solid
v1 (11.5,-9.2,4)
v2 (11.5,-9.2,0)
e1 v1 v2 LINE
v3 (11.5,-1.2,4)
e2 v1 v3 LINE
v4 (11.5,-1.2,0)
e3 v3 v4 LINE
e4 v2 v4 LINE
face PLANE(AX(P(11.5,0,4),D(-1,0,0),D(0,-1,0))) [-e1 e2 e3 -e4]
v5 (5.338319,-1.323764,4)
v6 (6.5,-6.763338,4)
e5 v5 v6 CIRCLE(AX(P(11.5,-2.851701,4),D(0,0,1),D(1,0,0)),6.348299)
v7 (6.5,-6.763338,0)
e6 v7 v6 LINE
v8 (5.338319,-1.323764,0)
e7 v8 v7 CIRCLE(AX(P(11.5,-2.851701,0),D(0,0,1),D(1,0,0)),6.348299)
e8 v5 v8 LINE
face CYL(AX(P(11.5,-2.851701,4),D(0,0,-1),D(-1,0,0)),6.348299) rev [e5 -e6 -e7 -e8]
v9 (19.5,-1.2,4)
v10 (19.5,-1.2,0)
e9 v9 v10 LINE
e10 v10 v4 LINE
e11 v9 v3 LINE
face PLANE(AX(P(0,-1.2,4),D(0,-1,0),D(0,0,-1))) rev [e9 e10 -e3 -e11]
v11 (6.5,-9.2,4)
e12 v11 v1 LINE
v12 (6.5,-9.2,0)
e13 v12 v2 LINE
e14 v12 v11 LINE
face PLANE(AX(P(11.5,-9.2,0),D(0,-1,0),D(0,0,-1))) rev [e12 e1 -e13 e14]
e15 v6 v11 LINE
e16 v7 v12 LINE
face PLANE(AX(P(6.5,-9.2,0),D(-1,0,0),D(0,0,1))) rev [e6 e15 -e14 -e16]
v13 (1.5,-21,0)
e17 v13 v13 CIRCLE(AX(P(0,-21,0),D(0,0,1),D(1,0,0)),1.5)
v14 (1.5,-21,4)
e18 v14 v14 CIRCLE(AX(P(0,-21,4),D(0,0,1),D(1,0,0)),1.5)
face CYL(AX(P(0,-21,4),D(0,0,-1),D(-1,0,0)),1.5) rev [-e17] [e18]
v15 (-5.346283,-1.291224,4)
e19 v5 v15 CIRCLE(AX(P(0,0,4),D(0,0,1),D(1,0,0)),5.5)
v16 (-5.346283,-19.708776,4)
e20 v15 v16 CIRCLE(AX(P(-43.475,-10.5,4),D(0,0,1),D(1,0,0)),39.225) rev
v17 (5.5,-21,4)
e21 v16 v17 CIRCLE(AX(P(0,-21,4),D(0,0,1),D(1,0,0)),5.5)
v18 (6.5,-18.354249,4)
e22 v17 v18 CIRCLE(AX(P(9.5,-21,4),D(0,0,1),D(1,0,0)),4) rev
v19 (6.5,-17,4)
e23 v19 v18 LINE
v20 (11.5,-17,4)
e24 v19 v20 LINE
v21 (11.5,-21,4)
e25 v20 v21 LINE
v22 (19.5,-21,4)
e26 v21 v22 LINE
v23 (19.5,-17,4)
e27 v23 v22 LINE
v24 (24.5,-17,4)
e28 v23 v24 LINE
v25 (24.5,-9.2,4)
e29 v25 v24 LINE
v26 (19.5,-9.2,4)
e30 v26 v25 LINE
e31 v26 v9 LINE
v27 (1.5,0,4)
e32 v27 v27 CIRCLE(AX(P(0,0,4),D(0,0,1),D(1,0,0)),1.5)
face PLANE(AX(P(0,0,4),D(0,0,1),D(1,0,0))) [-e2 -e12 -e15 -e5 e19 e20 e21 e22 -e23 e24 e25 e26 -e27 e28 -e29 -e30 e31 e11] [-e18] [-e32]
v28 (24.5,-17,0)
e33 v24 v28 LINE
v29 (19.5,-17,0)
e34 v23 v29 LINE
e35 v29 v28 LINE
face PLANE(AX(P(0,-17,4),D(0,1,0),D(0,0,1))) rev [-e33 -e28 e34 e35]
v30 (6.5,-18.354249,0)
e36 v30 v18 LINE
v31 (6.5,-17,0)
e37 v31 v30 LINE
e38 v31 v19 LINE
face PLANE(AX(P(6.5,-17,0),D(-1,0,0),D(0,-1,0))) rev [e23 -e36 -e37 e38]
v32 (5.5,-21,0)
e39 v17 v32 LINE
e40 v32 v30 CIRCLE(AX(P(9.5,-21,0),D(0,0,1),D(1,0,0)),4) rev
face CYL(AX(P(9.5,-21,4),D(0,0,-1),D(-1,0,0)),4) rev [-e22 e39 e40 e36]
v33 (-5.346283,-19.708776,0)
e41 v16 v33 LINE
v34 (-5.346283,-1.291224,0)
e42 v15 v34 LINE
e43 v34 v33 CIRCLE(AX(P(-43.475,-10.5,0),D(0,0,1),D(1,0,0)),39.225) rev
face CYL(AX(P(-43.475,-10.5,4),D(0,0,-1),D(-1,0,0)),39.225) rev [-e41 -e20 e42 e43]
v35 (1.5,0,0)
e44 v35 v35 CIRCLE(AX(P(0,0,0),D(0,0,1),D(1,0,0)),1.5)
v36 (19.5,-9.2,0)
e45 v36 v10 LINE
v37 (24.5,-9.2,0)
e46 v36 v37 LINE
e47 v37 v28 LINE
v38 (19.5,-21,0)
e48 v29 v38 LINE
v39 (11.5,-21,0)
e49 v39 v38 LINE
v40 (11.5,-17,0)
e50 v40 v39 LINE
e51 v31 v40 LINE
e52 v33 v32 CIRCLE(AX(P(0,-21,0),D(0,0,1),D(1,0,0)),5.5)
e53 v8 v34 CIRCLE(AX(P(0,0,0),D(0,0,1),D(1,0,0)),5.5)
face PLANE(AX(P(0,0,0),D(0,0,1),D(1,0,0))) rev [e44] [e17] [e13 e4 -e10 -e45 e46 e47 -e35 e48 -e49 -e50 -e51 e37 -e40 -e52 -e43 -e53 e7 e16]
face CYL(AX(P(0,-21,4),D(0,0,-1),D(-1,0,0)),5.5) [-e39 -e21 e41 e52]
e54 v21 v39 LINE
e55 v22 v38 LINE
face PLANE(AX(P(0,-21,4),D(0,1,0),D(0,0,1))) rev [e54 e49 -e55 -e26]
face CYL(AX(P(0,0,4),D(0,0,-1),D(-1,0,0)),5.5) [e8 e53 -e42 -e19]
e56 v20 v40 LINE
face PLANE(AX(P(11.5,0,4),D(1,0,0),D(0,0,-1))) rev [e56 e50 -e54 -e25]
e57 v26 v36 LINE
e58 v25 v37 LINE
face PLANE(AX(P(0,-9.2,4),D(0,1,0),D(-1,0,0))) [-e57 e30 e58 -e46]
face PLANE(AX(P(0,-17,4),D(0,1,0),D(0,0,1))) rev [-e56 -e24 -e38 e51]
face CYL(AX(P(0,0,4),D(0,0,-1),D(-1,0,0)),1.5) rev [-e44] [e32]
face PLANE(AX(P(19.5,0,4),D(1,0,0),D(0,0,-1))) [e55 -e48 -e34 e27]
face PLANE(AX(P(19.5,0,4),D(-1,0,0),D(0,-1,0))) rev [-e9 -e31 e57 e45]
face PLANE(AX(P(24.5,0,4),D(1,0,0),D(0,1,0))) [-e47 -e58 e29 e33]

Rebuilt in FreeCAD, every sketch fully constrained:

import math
import FreeCAD as App
import Part
import Sketcher

V = App.Vector

doc = App.newDocument("Part")
body = doc.addObject("PartDesign::Body", "Body")

# Sketch on XY plane
sketch1 = doc.addObject("Sketcher::SketchObject", "Sketch")
body.addObject(sketch1)
sketch1.AttachmentSupport = (doc.XY_Plane, [""])
sketch1.MapMode = "FlatFace"
sketch1.addGeometry([
    Part.LineSegment(V(11.5, -1.2, 0), V(11.5, -9.2, 0)),  # 0
    Part.ArcOfCircle(Part.Circle(V(11.5, -2.851701, 0), V(0, 0, 1), 6.348299), math.radians(166.073063), math.radians(270)),  # 1
    Part.ArcOfCircle(Part.Circle(V(0, 0, 0), V(0, 0, 1), 5.5), math.radians(-13.926937), math.radians(193.577949)),  # 2
    Part.ArcOfCircle(Part.Circle(V(-43.475, -10.5, 0), V(0, 0, 1), 39.225), math.radians(-13.577949), math.radians(13.577949)),  # 3
    Part.ArcOfCircle(Part.Circle(V(0, -21, 0), V(0, 0, 1), 5.5), math.radians(166.422051), math.radians(360)),  # 4
    Part.ArcOfCircle(Part.Circle(V(9.5, -21, 0), V(0, 0, 1), 4), math.radians(90), math.radians(180)),  # 5
    Part.LineSegment(V(9.5, -17, 0), V(11.5, -17, 0)),  # 6
    Part.LineSegment(V(11.5, -17, 0), V(11.5, -21, 0)),  # 7
    Part.LineSegment(V(11.5, -21, 0), V(19.5, -21, 0)),  # 8
    Part.LineSegment(V(19.5, -21, 0), V(19.5, -17, 0)),  # 9
    Part.LineSegment(V(19.5, -17, 0), V(24.5, -17, 0)),  # 10
    Part.LineSegment(V(24.5, -17, 0), V(24.5, -9.2, 0)),  # 11
    Part.LineSegment(V(24.5, -9.2, 0), V(19.5, -9.2, 0)),  # 12
    Part.LineSegment(V(19.5, -9.2, 0), V(19.5, -1.2, 0)),  # 13
    Part.LineSegment(V(19.5, -1.2, 0), V(11.5, -1.2, 0)),  # 14
    Part.Circle(V(0, -21, 0), V(0, 0, 1), 1.5),  # 15
    Part.Circle(V(0, 0, 0), V(0, 0, 1), 1.5),  # 16
], False)
sketch1.addConstraint([
    Sketcher.Constraint("Coincident", 0, 2, 1, 2),
    Sketcher.Constraint("Tangent", 1, 1, 2, 1),
    Sketcher.Constraint("Tangent", 2, 2, 3, 2),
    Sketcher.Constraint("Tangent", 3, 1, 4, 1),
    Sketcher.Constraint("Tangent", 4, 2, 5, 2),
    Sketcher.Constraint("Tangent", 5, 1, 6, 1),
    Sketcher.Constraint("Coincident", 6, 2, 7, 1),
    Sketcher.Constraint("Coincident", 7, 2, 8, 1),
    Sketcher.Constraint("Coincident", 8, 2, 9, 1),
    Sketcher.Constraint("Coincident", 9, 2, 10, 1),
    Sketcher.Constraint("Coincident", 10, 2, 11, 1),
    Sketcher.Constraint("Coincident", 11, 2, 12, 1),
    Sketcher.Constraint("Coincident", 12, 2, 13, 1),
    Sketcher.Constraint("Coincident", 13, 2, 14, 1),
    Sketcher.Constraint("Coincident", 14, 2, 0, 1),
    Sketcher.Constraint("Vertical", 0),
    Sketcher.Constraint("Horizontal", 6),
    Sketcher.Constraint("Vertical", 7),
    Sketcher.Constraint("Horizontal", 8),
    Sketcher.Constraint("Vertical", 9),
    Sketcher.Constraint("Horizontal", 10),
    Sketcher.Constraint("Vertical", 11),
    Sketcher.Constraint("Horizontal", 12),
    Sketcher.Constraint("Vertical", 13),
    Sketcher.Constraint("Horizontal", 14),
    Sketcher.Constraint("Coincident", 2, 3, -1, 1),
    Sketcher.Constraint("Coincident", 16, 3, -1, 1),
    Sketcher.Constraint("Coincident", 15, 3, 4, 3),
    Sketcher.Constraint("Equal", 2, 4),
    Sketcher.Constraint("Equal", 15, 16),
    Sketcher.Constraint("PointOnObject", 4, 3, -2),
    Sketcher.Constraint("Horizontal", 4, 3, 5, 3),
    Sketcher.Constraint("Horizontal", 4, 2, 7, 2),
    Sketcher.Constraint("Horizontal", 6, 2, 9, 2),
    Sketcher.Constraint("Horizontal", 0, 2, 11, 2),
    Sketcher.Constraint("Vertical", 1, 3, 0, 2),
    Sketcher.Constraint("Vertical", 0, 2, 6, 2),
    Sketcher.Constraint("Vertical", 9, 2, 12, 2),
    Sketcher.Constraint("Equal", 14, 0),
    Sketcher.Constraint("Diameter", 15, 3.0),
    Sketcher.Constraint("Radius", 5, 4.0),
    Sketcher.Constraint("Radius", 2, 5.5),
    Sketcher.Constraint("DistanceX", 6, 1, 6, 2, 2.0),
    Sketcher.Constraint("DistanceX", 8, 1, 8, 2, 8.0),
    Sketcher.Constraint("DistanceX", 10, 1, 10, 2, 5.0),
    Sketcher.Constraint("DistanceY", 11, 1, 11, 2, 7.8),
    Sketcher.Constraint("DistanceY", 4, 3, -1, 1, 21.0),
    Sketcher.Constraint("Radius", 3, 39.225),
])
pad1 = doc.addObject("PartDesign::Pad", "Pad")
body.addObject(pad1)
pad1.Profile = sketch1
pad1.Length = 4

# Sketch on XY plane
sketch2 = doc.addObject("Sketcher::SketchObject", "Sketch001")
body.addObject(sketch2)
sketch2.AttachmentSupport = (doc.XY_Plane, [""])
sketch2.MapMode = "FlatFace"
sketch2.AttachmentOffset = App.Placement(V(0, 0, 4), App.Rotation())
sketch2.addGeometry([
    Part.LineSegment(V(6.5, -4.2, 0), V(6.5, -9.2, 0)),  # 0
    Part.LineSegment(V(6.5, -9.2, 0), V(11.5, -9.2, 0)),  # 1
    Part.LineSegment(V(11.5, -9.2, 0), V(11.5, -4.2, 0)),  # 2
    Part.LineSegment(V(11.5, -4.2, 0), V(6.5, -4.2, 0)),  # 3
    Part.LineSegment(V(6.5, -17, 0), V(6.5, -22, 0)),  # 4
    Part.LineSegment(V(6.5, -22, 0), V(11.5, -22, 0)),  # 5
    Part.LineSegment(V(11.5, -22, 0), V(11.5, -17, 0)),  # 6
    Part.LineSegment(V(11.5, -17, 0), V(6.5, -17, 0)),  # 7
], False)
sketch2.addConstraint([
    Sketcher.Constraint("Coincident", 0, 2, 1, 1),
    Sketcher.Constraint("Coincident", 1, 2, 2, 1),
    Sketcher.Constraint("Coincident", 2, 2, 3, 1),
    Sketcher.Constraint("Coincident", 3, 2, 0, 1),
    Sketcher.Constraint("Coincident", 4, 2, 5, 1),
    Sketcher.Constraint("Coincident", 5, 2, 6, 1),
    Sketcher.Constraint("Coincident", 6, 2, 7, 1),
    Sketcher.Constraint("Coincident", 7, 2, 4, 1),
    Sketcher.Constraint("Vertical", 0),
    Sketcher.Constraint("Horizontal", 1),
    Sketcher.Constraint("Vertical", 2),
    Sketcher.Constraint("Horizontal", 3),
    Sketcher.Constraint("Vertical", 4),
    Sketcher.Constraint("Horizontal", 5),
    Sketcher.Constraint("Vertical", 6),
    Sketcher.Constraint("Horizontal", 7),
    Sketcher.Constraint("Vertical", 3, 2, 4, 2),
    Sketcher.Constraint("Vertical", 2, 2, 5, 2),
    Sketcher.Constraint("Equal", 7, 0),
    Sketcher.Constraint("Equal", 2, 4),
    Sketcher.Constraint("DistanceX", 1, 1, 1, 2, 5.0),
    Sketcher.Constraint("DistanceY", 4, 2, -1, 1, 22.0),
    Sketcher.Constraint("DistanceX", -1, 1, 0, 2, 6.5),
    Sketcher.Constraint("DistanceY", 0, 2, -1, 1, 9.2),
])
pocket1 = doc.addObject("PartDesign::Pocket", "Pocket")
body.addObject(pocket1)
pocket1.Profile = sketch2
pocket1.Length = 4

doc.recompute()
